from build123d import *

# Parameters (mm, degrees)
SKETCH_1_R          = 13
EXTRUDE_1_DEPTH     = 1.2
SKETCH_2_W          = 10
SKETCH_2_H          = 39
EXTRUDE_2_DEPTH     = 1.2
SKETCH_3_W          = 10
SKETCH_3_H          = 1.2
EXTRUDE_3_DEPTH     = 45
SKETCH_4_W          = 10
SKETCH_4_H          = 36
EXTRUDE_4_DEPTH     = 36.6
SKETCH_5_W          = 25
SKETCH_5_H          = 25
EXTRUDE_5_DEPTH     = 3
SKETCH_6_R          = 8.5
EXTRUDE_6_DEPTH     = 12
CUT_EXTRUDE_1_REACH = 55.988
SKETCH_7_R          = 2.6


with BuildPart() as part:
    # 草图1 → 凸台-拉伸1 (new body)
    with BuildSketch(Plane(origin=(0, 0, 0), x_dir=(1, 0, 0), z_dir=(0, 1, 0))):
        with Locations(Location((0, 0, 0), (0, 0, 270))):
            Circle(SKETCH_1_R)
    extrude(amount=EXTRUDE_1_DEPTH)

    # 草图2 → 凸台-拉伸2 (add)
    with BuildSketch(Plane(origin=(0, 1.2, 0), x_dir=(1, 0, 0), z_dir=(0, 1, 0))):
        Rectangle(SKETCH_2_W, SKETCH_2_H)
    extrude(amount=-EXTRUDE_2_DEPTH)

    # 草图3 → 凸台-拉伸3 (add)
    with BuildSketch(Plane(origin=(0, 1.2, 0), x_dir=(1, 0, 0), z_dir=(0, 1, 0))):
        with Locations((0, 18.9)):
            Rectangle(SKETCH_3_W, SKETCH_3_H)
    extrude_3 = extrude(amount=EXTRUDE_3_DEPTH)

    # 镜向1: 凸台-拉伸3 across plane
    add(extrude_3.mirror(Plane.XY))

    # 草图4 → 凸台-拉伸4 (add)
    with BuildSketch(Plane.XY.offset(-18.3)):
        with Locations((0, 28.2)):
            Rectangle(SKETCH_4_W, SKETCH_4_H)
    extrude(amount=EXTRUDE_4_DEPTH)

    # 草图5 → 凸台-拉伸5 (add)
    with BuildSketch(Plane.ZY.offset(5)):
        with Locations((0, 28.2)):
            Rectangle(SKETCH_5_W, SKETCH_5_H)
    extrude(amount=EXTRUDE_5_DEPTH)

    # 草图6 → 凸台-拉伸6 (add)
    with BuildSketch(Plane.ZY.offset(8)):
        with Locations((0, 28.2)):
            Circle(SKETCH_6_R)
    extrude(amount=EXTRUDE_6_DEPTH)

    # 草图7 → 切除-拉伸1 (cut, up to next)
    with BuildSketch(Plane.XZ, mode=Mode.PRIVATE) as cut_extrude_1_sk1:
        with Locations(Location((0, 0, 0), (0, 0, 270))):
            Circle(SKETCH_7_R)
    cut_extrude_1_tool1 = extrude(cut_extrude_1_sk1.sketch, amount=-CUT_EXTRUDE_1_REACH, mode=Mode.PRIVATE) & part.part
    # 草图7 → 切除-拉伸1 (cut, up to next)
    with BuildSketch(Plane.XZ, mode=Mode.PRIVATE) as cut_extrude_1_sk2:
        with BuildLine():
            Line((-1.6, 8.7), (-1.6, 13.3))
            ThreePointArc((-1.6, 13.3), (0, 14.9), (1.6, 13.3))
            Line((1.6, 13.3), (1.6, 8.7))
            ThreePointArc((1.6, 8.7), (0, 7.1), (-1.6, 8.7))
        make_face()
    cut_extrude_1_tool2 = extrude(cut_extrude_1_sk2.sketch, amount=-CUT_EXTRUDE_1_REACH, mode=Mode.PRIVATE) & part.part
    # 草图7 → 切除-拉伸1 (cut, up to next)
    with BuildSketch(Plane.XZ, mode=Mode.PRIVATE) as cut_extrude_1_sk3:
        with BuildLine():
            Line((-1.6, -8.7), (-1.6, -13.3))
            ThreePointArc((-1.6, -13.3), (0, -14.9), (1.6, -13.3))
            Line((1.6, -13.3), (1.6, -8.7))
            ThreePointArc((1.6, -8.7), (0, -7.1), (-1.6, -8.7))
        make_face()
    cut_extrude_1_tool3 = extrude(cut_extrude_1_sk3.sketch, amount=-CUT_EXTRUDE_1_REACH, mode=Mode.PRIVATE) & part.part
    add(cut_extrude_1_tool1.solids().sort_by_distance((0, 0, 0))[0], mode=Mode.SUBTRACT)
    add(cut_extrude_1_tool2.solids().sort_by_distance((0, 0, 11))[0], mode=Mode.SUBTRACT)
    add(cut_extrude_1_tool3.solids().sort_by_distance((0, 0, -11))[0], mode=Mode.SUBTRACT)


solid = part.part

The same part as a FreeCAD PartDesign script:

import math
import FreeCAD as App
import Part
import Sketcher
Q = App.Units.Quantity


def add_polygon(sketch, points):
    """Adds a closed chain of lines whose ends are joined by coincident constraints."""
    first, n = sketch.GeometryCount, len(points)
    for a, b in zip(points, points[1:] + points[:1]):
        sketch.addGeometry(Part.LineSegment(App.Vector(*a, 0), App.Vector(*b, 0)), False)
    for i in range(n):
        sketch.addConstraint(Sketcher.Constraint("Coincident", first + i, 2, first + (i + 1) % n, 1))

doc = App.newDocument("Part")
params = doc.addObject("Spreadsheet::Sheet", "Params")
for row, (alias, value) in enumerate([
    ("sketch1_diameter", "26 mm"),
    ("pad1_length", "1.2 mm"),
    ("sketch2_width", "10 mm"),
    ("sketch2_height", "39 mm"),
    ("pad2_length", "1.2 mm"),
    ("sketch3_width", "10 mm"),
    ("sketch3_height", "1.2 mm"),
    ("pad3_length", "45 mm"),
    ("sketch4_width", "10 mm"),
    ("sketch4_height", "36 mm"),
    ("pad4_length", "36.6 mm"),
    ("sketch5_width", "25 mm"),
    ("pad5_length", "3 mm"),
    ("sketch6_diameter", "17 mm"),
    ("pad6_length", "12 mm"),
    ("sketch7_diameter", "5.2 mm"),
    ("sketch8_radius", "1.6 mm"),
    ("sketch8_height", "4.6 mm"),
    ("sketch9_radius", "1.6 mm"),
    ("sketch9_height", "4.6 mm"),
], start=1):
    params.set(f"A{row}", alias)
    params.set(f"B{row}", "=" + value)
    params.setAlias(f"B{row}", alias)

body = doc.addObject("PartDesign::Body", "Body")

sketch1 = doc.addObject("Sketcher::SketchObject", "Sketch")
body.addObject(sketch1)
sketch1.AttachmentSupport = (doc.XZ_Plane, [""])
sketch1.MapMode = "FlatFace"
sketch1.addGeometry(Part.Circle(App.Vector(0, 0, 0), App.Vector(0, 0, 1), 13), False)
sketch1.addConstraint([
    Sketcher.Constraint("Coincident", 0, 3, -1, 1),
    Sketcher.Constraint("Diameter", 0, Q("26 mm")),
])
sketch1.setExpression("Constraints[1]", "Params.sketch1_diameter")
pad1 = doc.addObject("PartDesign::Pad", "Pad")
body.addObject(pad1)
pad1.Profile = sketch1
pad1.setExpression("Length", "Params.pad1_length")
pad1.Reversed = True

sketch2 = doc.addObject("Sketcher::SketchObject", "Sketch001")
body.addObject(sketch2)
sketch2.AttachmentSupport = (doc.XZ_Plane, [""])
sketch2.MapMode = "FlatFace"
sketch2.AttachmentOffset = App.Placement(App.Vector(0, 0, -1.2), App.Rotation())
add_polygon(sketch2, [(-5, -19.5), (-5, 19.5), (5, 19.5), (5, -19.5)])
sketch2.addConstraint([
    Sketcher.Constraint("Vertical", 0),
    Sketcher.Constraint("Horizontal", 1),
    Sketcher.Constraint("Vertical", 2),
    Sketcher.Constraint("Horizontal", 3),
    Sketcher.Constraint("Symmetric", 0, 2, 2, 2, -1, 1),
    Sketcher.Constraint("DistanceX", 1, 1, 1, 2, Q("10 mm")),
    Sketcher.Constraint("DistanceY", 0, 1, 0, 2, Q("39 mm")),
])
sketch2.setExpression("Constraints[9]", "Params.sketch2_width")
sketch2.setExpression("Constraints[10]", "Params.sketch2_height")
pad2 = doc.addObject("PartDesign::Pad", "Pad001")
body.addObject(pad2)
pad2.Profile = sketch2
pad2.setExpression("Length", "Params.pad2_length")

sketch3 = doc.addObject("Sketcher::SketchObject", "Sketch002")
body.addObject(sketch3)
sketch3.AttachmentSupport = (doc.XZ_Plane, [""])
sketch3.MapMode = "FlatFace"
sketch3.AttachmentOffset = App.Placement(App.Vector(0, 0, -1.2), App.Rotation())
add_polygon(sketch3, [(-5, -19.5), (-5, -18.3), (5, -18.3), (5, -19.5)])
sketch3.addConstraint([
    Sketcher.Constraint("Vertical", 0),
    Sketcher.Constraint("Horizontal", 1),
    Sketcher.Constraint("Vertical", 2),
    Sketcher.Constraint("Horizontal", 3),
    Sketcher.Constraint("DistanceX", 1, 1, 1, 2, Q("10 mm")),
    Sketcher.Constraint("DistanceY", 0, 1, 0, 2, Q("1.2 mm")),
    Sketcher.Constraint("DistanceX", 0, 2, -1, 1, Q("5 mm")),
    Sketcher.Constraint("DistanceY", 0, 2, -1, 1, Q("18.3 mm")),
])
sketch3.setExpression("Constraints[8]", "Params.sketch3_width")
sketch3.setExpression("Constraints[9]", "Params.sketch3_height")
pad3 = doc.addObject("PartDesign::Pad", "Pad002")
body.addObject(pad3)
pad3.Profile = sketch3
pad3.setExpression("Length", "Params.pad3_length")
pad3.Reversed = True
doc.recompute()

mirrored = doc.addObject("PartDesign::Mirrored", "Mirrored")
body.addObject(mirrored)
mirrored.Originals = [pad3]
mirrored.MirrorPlane = (doc.XY_Plane, [""])
body.Tip = mirrored

sketch4 = doc.addObject("Sketcher::SketchObject", "Sketch003")
body.addObject(sketch4)
sketch4.AttachmentSupport = (doc.XY_Plane, [""])
sketch4.MapMode = "FlatFace"
sketch4.AttachmentOffset = App.Placement(App.Vector(0, 0, -18.3), App.Rotation())
add_polygon(sketch4, [(-5, 46.2), (-5, 10.2), (5, 10.2), (5, 46.2)])
sketch4.addConstraint([
    Sketcher.Constraint("Vertical", 0),
    Sketcher.Constraint("Horizontal", 1),
    Sketcher.Constraint("Vertical", 2),
    Sketcher.Constraint("Horizontal", 3),
    Sketcher.Constraint("DistanceX", 1, 1, 1, 2, Q("10 mm")),
    Sketcher.Constraint("DistanceY", 0, 2, 0, 1, Q("36 mm")),
    Sketcher.Constraint("DistanceX", 0, 2, -1, 1, Q("5 mm")),
    Sketcher.Constraint("DistanceY", -1, 1, 0, 2, Q("10.2 mm")),
])
sketch4.setExpression("Constraints[8]", "Params.sketch4_width")
sketch4.setExpression("Constraints[9]", "Params.sketch4_height")
pad4 = doc.addObject("PartDesign::Pad", "Pad003")
body.addObject(pad4)
pad4.Profile = sketch4
pad4.setExpression("Length", "Params.pad4_length")

sketch5 = doc.addObject("Sketcher::SketchObject", "Sketch004")
body.addObject(sketch5)
sketch5.AttachmentSupport = (doc.YZ_Plane, [""])
sketch5.MapMode = "FlatFace"
sketch5.AttachmentOffset = App.Placement(App.Vector(0, 0, -5), App.Rotation())
add_polygon(sketch5, [(40.7, -12.5), (15.7, -12.5), (15.7, 12.5), (40.7, 12.5)])
sketch5.addConstraint([
    Sketcher.Constraint("Horizontal", 0),
    Sketcher.Constraint("Vertical", 1),
    Sketcher.Constraint("Horizontal", 2),
    Sketcher.Constraint("Vertical", 3),
    Sketcher.Constraint("Equal", 2, 1),
    Sketcher.Constraint("DistanceX", 0, 2, 0, 1, Q("25 mm")),
    Sketcher.Constraint("DistanceX", -1, 1, 0, 2, Q("15.7 mm")),
    Sketcher.Constraint("DistanceY", 0, 2, -1, 1, Q("12.5 mm")),
])
sketch5.setExpression("Constraints[9]", "Params.sketch5_width")
pad5 = doc.addObject("PartDesign::Pad", "Pad004")
body.addObject(pad5)
pad5.Profile = sketch5
pad5.setExpression("Length", "Params.pad5_length")
pad5.Reversed = True

sketch6 = doc.addObject("Sketcher::SketchObject", "Sketch005")
body.addObject(sketch6)
sketch6.AttachmentSupport = (doc.YZ_Plane, [""])
sketch6.MapMode = "FlatFace"
sketch6.AttachmentOffset = App.Placement(App.Vector(0, 0, -8), App.Rotation())
sketch6.addGeometry(Part.Circle(App.Vector(28.2, 0, 0), App.Vector(0, 0, 1), 8.5), False)
sketch6.addConstraint([
    Sketcher.Constraint("PointOnObject", 0, 3, -1),
    Sketcher.Constraint("Diameter", 0, Q("17 mm")),
    Sketcher.Constraint("DistanceX", -1, 1, 0, 3, Q("28.2 mm")),
])
sketch6.setExpression("Constraints[1]", "Params.sketch6_diameter")
pad6 = doc.addObject("PartDesign::Pad", "Pad005")
body.addObject(pad6)
pad6.Profile = sketch6
pad6.setExpression("Length", "Params.pad6_length")
pad6.Reversed = True

sketch7 = doc.addObject("Sketcher::SketchObject", "Sketch006")
body.addObject(sketch7)
sketch7.AttachmentSupport = (doc.XZ_Plane, [""])
sketch7.MapMode = "FlatFace"
sketch7.addGeometry(Part.Circle(App.Vector(0, 0, 0), App.Vector(0, 0, 1), 2.6), False)
sketch7.addConstraint([
    Sketcher.Constraint("Coincident", 0, 3, -1, 1),
    Sketcher.Constraint("Diameter", 0, Q("5.2 mm")),
])
sketch7.setExpression("Constraints[1]", "Params.sketch7_diameter")
pocket1 = doc.addObject("PartDesign::Pocket", "Pocket")
body.addObject(pocket1)
pocket1.Profile = sketch7
pocket1.Type = "UpToFirst"

sketch8 = doc.addObject("Sketcher::SketchObject", "Sketch007")
body.addObject(sketch8)
sketch8.AttachmentSupport = (doc.XZ_Plane, [""])
sketch8.MapMode = "FlatFace"
sketch8.addGeometry([
    Part.LineSegment(App.Vector(-1.6, 13.3, 0), App.Vector(-1.6, 8.7, 0)),
    Part.ArcOfCircle(Part.Circle(App.Vector(0, 8.7, 0), App.Vector(0, 0, 1), 1.6), math.radians(180), math.radians(360)),
    Part.LineSegment(App.Vector(1.6, 8.7, 0), App.Vector(1.6, 13.3, 0)),
    Part.ArcOfCircle(Part.Circle(App.Vector(0, 13.3, 0), App.Vector(0, 0, 1), 1.6), math.radians(0), math.radians(180)),
], False)
sketch8.addConstraint([
    Sketcher.Constraint("Tangent", 0, 2, 1, 1),
    Sketcher.Constraint("Tangent", 1, 2, 2, 1),
    Sketcher.Constraint("Tangent", 2, 2, 3, 1),
    Sketcher.Constraint("Tangent", 3, 2, 0, 1),
    Sketcher.Constraint("Vertical", 0),
    Sketcher.Constraint("Vertical", 2),
    Sketcher.Constraint("PointOnObject", 1, 3, -2),
    Sketcher.Constraint("Radius", 1, Q("1.6 mm")),
    Sketcher.Constraint("DistanceY", 0, 2, 0, 1, Q("4.6 mm")),
    Sketcher.Constraint("DistanceY", -1, 1, 1, 3, Q("8.7 mm")),
])
sketch8.setExpression("Constraints[7]", "Params.sketch8_radius")
sketch8.setExpression("Constraints[8]", "Params.sketch8_height")
pocket2 = doc.addObject("PartDesign::Pocket", "Pocket001")
body.addObject(pocket2)
pocket2.Profile = sketch8
pocket2.Type = "UpToFirst"

sketch9 = doc.addObject("Sketcher::SketchObject", "Sketch008")
body.addObject(sketch9)
sketch9.AttachmentSupport = (doc.XZ_Plane, [""])
sketch9.MapMode = "FlatFace"
sketch9.addGeometry([
    Part.LineSegment(App.Vector(-1.6, -8.7, 0), App.Vector(-1.6, -13.3, 0)),
    Part.ArcOfCircle(Part.Circle(App.Vector(0, -13.3, 0), App.Vector(0, 0, 1), 1.6), math.radians(180), math.radians(360)),
    Part.LineSegment(App.Vector(1.6, -13.3, 0), App.Vector(1.6, -8.7, 0)),
    Part.ArcOfCircle(Part.Circle(App.Vector(0, -8.7, 0), App.Vector(0, 0, 1), 1.6), math.radians(0), math.radians(180)),
], False)
sketch9.addConstraint([
    Sketcher.Constraint("Tangent", 0, 2, 1, 1),
    Sketcher.Constraint("Tangent", 1, 2, 2, 1),
    Sketcher.Constraint("Tangent", 2, 2, 3, 1),
    Sketcher.Constraint("Tangent", 3, 2, 0, 1),
    Sketcher.Constraint("Vertical", 0),
    Sketcher.Constraint("Vertical", 2),
    Sketcher.Constraint("PointOnObject", 1, 3, -2),
    Sketcher.Constraint("Radius", 1, Q("1.6 mm")),
    Sketcher.Constraint("DistanceY", 0, 2, 0, 1, Q("4.6 mm")),
    Sketcher.Constraint("DistanceY", 1, 3, -1, 1, Q("13.3 mm")),
])
sketch9.setExpression("Constraints[7]", "Params.sketch9_radius")
sketch9.setExpression("Constraints[8]", "Params.sketch9_height")
pocket3 = doc.addObject("PartDesign::Pocket", "Pocket002")
body.addObject(pocket3)
pocket3.Profile = sketch9
pocket3.Type = "UpToFirst"

doc.recompute()
